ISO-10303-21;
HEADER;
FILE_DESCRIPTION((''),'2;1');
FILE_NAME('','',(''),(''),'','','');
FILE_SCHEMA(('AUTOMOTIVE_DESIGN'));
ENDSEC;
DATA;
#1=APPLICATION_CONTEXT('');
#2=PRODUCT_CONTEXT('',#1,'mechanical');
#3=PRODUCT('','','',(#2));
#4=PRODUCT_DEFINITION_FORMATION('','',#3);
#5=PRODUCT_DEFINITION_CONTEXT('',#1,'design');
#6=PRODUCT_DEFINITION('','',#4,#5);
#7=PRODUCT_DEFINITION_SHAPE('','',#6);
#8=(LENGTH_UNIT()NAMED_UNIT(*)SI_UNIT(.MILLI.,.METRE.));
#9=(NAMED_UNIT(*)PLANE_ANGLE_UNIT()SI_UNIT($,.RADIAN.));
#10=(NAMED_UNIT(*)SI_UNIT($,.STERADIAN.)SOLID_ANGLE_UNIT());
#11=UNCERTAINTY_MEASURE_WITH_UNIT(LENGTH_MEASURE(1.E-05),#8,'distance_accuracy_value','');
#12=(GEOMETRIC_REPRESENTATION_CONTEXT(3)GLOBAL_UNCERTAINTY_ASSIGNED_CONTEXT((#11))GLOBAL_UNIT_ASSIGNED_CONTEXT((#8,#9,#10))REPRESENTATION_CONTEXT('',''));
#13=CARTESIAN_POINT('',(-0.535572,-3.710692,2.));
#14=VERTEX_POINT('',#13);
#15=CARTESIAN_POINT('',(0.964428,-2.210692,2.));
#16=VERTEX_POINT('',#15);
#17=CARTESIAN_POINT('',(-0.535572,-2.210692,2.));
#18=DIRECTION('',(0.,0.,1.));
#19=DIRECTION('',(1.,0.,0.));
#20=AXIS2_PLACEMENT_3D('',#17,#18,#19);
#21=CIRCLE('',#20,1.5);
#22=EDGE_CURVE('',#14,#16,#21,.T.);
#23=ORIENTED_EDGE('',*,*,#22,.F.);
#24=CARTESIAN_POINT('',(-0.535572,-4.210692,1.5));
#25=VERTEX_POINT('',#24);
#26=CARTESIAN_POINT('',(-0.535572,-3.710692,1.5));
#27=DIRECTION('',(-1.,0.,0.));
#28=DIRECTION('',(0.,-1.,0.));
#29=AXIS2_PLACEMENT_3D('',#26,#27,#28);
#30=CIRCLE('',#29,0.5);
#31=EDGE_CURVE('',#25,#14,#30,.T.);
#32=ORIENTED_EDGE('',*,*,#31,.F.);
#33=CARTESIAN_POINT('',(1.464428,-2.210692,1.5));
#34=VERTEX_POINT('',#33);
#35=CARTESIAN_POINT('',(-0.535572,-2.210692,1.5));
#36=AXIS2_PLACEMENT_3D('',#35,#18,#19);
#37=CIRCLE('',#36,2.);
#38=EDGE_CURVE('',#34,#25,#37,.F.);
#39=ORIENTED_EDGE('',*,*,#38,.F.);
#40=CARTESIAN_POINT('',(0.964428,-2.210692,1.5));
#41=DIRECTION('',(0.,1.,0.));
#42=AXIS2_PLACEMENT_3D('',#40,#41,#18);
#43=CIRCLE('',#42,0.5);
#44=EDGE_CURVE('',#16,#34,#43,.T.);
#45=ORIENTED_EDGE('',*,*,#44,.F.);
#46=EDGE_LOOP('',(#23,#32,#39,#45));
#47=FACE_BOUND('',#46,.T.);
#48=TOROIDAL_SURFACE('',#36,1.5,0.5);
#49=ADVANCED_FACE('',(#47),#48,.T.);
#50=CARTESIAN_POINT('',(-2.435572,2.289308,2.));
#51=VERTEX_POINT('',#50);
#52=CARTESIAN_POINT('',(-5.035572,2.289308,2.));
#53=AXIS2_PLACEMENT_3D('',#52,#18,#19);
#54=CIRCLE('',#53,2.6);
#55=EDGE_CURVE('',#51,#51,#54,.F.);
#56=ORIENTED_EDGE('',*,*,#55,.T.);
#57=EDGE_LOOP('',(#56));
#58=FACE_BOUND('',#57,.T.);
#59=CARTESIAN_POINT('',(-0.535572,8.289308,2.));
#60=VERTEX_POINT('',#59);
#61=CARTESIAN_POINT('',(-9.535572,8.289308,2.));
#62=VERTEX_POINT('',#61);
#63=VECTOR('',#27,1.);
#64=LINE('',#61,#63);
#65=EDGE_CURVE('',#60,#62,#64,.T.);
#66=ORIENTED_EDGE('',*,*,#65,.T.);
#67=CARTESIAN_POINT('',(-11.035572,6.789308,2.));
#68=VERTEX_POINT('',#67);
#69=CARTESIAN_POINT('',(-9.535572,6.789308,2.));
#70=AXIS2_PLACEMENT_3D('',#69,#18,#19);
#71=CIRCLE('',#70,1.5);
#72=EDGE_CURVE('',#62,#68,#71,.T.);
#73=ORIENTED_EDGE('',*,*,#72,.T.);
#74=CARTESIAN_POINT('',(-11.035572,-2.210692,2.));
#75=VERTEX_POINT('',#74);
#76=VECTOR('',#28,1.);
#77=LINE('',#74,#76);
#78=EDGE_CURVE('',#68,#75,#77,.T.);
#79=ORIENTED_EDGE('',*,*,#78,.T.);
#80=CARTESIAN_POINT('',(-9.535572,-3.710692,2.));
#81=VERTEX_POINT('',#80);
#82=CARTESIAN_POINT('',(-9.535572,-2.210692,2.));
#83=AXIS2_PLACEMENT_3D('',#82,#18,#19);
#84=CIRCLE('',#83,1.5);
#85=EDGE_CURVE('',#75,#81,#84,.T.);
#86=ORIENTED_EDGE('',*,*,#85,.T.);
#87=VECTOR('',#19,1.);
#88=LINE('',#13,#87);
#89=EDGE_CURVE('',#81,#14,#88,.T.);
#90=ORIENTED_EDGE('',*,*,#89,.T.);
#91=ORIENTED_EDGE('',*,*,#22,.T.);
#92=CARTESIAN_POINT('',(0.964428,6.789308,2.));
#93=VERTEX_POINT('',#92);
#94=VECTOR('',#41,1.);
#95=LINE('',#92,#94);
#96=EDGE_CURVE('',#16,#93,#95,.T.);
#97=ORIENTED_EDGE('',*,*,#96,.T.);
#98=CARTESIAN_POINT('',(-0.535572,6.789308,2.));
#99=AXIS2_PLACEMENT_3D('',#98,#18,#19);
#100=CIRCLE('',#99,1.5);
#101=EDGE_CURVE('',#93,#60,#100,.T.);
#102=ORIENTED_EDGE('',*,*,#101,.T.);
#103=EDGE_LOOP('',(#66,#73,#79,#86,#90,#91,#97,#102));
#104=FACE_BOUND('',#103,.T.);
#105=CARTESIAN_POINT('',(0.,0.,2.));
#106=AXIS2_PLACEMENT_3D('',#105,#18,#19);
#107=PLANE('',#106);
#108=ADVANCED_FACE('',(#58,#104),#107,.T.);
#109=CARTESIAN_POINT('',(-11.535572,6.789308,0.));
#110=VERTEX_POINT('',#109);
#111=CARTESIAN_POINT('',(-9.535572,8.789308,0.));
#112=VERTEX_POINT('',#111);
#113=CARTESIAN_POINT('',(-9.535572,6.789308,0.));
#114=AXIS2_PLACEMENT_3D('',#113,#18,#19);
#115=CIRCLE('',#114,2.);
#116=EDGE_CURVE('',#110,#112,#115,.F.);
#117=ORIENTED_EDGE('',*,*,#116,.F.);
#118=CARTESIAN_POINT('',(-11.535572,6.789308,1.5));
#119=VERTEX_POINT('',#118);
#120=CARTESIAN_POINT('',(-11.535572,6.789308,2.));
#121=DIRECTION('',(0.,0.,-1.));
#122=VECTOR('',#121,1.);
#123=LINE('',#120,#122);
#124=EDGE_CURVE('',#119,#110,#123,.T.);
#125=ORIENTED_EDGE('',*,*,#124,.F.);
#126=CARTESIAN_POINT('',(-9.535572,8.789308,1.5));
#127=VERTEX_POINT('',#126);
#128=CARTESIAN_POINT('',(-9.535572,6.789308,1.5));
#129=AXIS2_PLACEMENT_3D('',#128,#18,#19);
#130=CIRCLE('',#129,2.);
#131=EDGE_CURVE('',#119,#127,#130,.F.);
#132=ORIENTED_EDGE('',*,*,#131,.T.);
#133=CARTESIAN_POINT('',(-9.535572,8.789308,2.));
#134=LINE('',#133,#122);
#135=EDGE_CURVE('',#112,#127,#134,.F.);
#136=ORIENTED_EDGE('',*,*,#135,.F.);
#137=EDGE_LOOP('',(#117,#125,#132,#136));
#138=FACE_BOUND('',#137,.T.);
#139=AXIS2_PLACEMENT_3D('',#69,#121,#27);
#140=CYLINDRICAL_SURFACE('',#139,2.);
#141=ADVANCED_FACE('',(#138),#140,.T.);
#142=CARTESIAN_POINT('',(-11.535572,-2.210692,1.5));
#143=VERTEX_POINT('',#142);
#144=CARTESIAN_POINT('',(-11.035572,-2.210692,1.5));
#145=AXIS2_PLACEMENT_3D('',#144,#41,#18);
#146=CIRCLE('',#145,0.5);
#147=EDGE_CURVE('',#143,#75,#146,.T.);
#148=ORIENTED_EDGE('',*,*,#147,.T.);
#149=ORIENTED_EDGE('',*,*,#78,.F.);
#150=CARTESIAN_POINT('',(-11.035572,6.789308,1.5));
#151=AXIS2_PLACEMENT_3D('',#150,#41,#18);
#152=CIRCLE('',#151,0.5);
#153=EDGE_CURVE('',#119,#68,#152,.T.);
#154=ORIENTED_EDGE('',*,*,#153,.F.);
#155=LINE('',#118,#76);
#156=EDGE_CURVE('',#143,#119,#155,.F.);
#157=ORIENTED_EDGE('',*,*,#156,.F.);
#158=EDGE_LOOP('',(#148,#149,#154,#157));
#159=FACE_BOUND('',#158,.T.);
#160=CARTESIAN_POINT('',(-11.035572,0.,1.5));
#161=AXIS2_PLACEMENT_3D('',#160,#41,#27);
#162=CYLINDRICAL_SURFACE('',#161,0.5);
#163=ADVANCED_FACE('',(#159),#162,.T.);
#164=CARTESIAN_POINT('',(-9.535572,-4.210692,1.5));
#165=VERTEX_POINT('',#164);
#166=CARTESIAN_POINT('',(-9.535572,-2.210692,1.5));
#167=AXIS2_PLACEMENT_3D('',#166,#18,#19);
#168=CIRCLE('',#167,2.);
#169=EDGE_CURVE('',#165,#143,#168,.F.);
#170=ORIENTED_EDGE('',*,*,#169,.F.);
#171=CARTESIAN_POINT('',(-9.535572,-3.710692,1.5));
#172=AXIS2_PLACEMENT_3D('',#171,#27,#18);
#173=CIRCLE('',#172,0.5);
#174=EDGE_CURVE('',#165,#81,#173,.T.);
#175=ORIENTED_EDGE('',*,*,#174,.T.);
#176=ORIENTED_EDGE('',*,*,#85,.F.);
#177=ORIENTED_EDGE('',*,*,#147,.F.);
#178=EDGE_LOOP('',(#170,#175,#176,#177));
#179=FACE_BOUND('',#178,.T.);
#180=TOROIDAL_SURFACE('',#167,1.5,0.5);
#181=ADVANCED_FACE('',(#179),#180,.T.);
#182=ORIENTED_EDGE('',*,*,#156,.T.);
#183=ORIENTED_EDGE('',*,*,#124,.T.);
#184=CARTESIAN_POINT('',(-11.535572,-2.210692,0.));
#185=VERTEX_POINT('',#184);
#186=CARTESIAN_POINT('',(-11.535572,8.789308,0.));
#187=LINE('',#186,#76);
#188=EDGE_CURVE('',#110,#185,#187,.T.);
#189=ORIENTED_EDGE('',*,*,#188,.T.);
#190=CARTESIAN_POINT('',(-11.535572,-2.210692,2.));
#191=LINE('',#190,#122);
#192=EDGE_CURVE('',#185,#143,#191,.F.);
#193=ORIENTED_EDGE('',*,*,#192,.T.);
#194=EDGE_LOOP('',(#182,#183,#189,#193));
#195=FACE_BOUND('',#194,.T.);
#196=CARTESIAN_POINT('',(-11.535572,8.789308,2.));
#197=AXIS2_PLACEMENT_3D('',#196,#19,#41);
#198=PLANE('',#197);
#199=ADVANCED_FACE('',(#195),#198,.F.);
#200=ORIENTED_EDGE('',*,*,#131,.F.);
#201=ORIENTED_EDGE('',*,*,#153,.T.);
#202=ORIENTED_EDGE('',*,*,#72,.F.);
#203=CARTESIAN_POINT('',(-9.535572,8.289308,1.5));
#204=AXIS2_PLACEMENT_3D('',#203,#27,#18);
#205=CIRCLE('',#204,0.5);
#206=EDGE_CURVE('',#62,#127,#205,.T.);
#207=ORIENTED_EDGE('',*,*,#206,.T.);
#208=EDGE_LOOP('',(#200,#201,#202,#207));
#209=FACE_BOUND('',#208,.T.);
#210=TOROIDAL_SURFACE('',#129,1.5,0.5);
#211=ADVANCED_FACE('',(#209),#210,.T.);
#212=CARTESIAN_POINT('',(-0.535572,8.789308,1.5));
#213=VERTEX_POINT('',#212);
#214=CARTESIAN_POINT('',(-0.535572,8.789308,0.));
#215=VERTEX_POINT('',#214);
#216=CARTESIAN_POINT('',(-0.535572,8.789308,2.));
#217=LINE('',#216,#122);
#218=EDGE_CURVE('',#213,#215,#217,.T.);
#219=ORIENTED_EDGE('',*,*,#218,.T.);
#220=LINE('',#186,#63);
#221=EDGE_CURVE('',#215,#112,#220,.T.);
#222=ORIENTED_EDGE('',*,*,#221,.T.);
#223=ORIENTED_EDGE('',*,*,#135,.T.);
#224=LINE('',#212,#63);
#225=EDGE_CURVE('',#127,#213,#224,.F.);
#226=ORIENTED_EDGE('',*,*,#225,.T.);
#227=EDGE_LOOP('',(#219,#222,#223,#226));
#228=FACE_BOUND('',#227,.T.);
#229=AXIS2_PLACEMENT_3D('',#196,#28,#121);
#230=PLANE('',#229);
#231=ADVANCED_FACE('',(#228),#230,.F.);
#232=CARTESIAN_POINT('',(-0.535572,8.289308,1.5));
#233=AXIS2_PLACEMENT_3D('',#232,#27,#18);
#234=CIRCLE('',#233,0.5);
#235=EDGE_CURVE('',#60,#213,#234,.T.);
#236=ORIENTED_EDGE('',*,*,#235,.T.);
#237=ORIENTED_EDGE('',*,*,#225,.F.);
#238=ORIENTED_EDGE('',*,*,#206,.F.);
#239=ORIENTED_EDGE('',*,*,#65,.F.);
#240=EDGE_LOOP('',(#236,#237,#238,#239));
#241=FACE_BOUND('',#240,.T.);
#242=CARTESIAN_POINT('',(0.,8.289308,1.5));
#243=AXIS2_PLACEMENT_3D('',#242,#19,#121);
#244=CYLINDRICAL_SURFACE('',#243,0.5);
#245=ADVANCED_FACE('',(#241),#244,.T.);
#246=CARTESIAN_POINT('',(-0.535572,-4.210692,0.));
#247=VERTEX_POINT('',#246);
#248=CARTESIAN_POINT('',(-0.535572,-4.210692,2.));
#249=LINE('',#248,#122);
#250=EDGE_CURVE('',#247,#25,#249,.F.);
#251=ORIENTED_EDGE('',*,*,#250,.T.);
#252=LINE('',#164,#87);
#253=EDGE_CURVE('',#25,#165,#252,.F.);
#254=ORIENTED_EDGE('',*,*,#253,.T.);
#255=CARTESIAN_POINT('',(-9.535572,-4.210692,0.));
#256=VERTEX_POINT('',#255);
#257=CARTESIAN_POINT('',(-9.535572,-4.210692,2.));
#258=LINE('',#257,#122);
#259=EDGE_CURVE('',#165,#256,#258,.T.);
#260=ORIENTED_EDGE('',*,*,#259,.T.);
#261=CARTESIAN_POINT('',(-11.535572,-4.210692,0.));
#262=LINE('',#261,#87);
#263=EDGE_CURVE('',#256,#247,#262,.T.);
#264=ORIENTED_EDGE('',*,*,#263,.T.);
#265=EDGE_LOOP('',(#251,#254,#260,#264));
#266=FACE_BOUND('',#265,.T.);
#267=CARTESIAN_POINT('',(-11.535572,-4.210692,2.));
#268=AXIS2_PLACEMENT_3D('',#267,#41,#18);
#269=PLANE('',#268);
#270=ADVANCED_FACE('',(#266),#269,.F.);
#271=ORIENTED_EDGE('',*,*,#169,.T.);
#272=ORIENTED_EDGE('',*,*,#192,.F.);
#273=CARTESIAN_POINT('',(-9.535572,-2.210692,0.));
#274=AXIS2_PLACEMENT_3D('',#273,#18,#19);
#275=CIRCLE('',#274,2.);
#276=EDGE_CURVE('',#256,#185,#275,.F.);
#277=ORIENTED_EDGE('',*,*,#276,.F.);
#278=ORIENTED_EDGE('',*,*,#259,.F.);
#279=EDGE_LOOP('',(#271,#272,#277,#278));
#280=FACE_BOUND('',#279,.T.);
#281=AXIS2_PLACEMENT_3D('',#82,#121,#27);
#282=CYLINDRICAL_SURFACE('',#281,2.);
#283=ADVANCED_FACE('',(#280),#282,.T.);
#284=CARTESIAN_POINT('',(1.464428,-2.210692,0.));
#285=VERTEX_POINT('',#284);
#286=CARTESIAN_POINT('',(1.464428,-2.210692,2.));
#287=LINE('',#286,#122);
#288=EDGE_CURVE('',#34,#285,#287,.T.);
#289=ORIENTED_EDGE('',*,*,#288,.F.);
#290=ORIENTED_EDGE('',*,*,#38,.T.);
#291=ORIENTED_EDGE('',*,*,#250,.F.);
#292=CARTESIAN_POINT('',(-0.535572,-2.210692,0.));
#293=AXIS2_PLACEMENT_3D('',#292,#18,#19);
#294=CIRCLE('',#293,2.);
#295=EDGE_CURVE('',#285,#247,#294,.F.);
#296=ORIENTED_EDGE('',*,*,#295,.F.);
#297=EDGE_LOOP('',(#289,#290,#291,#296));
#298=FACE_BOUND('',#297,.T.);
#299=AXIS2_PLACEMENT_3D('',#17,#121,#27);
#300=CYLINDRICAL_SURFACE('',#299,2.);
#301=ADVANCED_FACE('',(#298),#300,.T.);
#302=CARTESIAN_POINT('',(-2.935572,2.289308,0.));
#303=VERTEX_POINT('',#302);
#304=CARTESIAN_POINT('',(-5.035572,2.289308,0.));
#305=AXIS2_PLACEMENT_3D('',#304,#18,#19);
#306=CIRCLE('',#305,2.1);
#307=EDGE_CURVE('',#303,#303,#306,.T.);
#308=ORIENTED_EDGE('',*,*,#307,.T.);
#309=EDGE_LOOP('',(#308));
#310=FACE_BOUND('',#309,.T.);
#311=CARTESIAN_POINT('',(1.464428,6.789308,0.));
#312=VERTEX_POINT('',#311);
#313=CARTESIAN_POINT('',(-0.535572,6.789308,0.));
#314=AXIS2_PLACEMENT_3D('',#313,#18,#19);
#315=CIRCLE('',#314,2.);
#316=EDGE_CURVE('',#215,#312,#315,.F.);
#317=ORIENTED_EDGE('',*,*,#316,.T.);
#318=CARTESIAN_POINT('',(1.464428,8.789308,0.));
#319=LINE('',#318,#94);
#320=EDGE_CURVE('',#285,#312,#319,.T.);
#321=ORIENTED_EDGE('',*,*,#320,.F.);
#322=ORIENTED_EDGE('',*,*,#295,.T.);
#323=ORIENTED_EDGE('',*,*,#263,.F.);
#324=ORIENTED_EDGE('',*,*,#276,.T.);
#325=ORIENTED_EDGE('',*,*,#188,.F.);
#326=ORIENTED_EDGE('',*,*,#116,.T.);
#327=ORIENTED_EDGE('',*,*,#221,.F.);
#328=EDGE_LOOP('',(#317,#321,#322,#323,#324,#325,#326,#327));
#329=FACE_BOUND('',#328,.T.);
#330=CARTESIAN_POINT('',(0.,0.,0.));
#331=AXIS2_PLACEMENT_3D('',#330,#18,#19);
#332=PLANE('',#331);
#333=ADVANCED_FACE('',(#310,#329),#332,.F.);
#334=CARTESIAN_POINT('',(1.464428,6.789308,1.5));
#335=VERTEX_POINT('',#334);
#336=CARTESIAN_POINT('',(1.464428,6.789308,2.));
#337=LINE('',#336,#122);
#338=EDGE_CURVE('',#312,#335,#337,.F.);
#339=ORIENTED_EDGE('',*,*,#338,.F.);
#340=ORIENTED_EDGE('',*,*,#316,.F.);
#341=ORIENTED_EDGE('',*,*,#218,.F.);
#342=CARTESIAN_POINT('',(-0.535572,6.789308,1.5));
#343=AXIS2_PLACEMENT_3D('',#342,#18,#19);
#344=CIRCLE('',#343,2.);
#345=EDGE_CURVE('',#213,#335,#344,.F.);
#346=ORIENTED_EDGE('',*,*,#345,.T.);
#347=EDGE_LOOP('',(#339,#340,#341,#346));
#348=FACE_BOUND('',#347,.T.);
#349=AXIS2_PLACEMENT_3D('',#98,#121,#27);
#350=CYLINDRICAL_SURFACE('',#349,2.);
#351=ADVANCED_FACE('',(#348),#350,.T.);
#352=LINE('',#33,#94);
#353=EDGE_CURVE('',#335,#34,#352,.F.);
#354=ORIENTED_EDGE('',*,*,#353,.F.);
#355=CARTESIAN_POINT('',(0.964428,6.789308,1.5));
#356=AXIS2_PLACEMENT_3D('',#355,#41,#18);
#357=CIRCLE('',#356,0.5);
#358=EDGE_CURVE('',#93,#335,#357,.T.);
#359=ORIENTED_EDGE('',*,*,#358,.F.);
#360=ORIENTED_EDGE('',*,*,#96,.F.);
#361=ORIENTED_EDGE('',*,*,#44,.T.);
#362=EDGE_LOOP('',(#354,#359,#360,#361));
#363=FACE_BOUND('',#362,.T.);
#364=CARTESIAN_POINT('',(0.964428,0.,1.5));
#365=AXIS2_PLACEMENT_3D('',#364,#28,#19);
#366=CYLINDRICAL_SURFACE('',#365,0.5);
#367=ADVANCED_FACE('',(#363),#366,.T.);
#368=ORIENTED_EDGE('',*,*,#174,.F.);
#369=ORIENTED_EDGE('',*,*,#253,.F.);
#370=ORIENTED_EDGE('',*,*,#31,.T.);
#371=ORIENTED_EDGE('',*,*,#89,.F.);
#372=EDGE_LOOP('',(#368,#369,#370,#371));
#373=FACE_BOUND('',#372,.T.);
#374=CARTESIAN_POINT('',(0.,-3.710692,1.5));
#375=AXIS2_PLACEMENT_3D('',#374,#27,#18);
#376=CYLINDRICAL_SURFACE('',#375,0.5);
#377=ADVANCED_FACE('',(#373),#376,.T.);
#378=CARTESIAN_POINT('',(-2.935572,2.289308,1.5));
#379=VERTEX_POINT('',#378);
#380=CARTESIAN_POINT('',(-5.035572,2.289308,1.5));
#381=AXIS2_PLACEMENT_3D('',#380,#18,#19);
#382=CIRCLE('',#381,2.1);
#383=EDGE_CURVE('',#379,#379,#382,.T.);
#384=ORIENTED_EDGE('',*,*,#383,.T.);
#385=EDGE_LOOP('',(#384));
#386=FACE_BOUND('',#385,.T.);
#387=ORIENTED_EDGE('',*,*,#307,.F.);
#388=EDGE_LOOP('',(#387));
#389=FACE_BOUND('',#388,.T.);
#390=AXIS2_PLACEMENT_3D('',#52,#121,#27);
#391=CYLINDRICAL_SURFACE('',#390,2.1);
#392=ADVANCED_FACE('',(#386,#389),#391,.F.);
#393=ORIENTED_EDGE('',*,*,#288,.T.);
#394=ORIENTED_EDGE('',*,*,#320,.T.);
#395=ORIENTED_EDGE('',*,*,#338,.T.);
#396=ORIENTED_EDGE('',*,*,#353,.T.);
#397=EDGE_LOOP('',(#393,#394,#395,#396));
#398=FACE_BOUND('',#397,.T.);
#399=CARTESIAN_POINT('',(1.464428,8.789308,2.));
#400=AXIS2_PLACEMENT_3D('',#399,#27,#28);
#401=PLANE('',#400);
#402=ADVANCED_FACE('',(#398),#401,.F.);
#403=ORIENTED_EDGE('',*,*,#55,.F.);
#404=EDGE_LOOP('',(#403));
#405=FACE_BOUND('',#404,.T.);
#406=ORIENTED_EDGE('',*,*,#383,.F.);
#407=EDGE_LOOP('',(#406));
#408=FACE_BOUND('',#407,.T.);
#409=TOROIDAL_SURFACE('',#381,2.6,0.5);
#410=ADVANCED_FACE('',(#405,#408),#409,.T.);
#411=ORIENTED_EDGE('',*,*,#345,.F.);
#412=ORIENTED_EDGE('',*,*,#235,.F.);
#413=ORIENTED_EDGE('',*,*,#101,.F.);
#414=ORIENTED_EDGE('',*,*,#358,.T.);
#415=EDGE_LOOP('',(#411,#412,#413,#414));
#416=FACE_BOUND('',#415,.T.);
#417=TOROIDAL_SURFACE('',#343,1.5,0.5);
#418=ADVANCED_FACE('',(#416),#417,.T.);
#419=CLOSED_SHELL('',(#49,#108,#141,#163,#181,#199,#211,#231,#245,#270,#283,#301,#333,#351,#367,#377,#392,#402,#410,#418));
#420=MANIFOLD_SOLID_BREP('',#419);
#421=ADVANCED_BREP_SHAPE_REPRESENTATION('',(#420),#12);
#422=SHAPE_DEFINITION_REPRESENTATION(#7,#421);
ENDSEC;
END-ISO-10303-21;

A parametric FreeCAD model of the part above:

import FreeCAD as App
import Part
import Sketcher
Q = App.Units.Quantity


def edges_at(feature, points):
    """Names of the edges that pass closest to the given points."""
    edges = feature.Shape.Edges
    near = lambda p: min(range(len(edges)), key=lambda i: edges[i].distToShape(Part.Vertex(*p))[0])
    return sorted({f"Edge{near(p) + 1}" for p in points})


def add_polygon(sketch, points):
    """Adds a closed chain of lines whose ends are joined by coincident constraints."""
    first, n = sketch.GeometryCount, len(points)
    for a, b in zip(points, points[1:] + points[:1]):
        sketch.addGeometry(Part.LineSegment(App.Vector(*a, 0), App.Vector(*b, 0)), False)
    for i in range(n):
        sketch.addConstraint(Sketcher.Constraint("Coincident", first + i, 2, first + (i + 1) % n, 1))

doc = App.newDocument("Part")
body = doc.addObject("PartDesign::Body", "Body")

# Sketch on XY plane
sketch1 = body.newObject("Sketcher::SketchObject", "Sketch")
sketch1.AttachmentSupport = (doc.getObject("XY_Plane"), [""])
sketch1.MapMode = "FlatFace"
add_polygon(sketch1, [(-11.5, 8.8), (-11.5, -4.2), (1.5, -4.2), (1.5, 8.8)])  # lines 0-3
sketch1.addGeometry(Part.Circle(App.Vector(-5, 2.3, 0), App.Vector(0, 0, 1), 2.1), False)  # 4
sketch1.addConstraint([
    Sketcher.Constraint("Vertical", 0),
    Sketcher.Constraint("Horizontal", 1),
    Sketcher.Constraint("Vertical", 2),
    Sketcher.Constraint("Horizontal", 3),
    Sketcher.Constraint("Equal", 3, 0),
    Sketcher.Constraint("Diameter", 4, Q("4.2 mm")),
    Sketcher.Constraint("DistanceX", 1, 1, 1, 2, Q("13 mm")),
    Sketcher.Constraint("DistanceX", 0, 2, 4, 3, Q("6.5 mm")),
    Sketcher.Constraint("DistanceY", 0, 2, 4, 3, Q("6.5 mm")),
    Sketcher.Constraint("DistanceX", 4, 3, -1, 1, Q("5.035572 mm")),
    Sketcher.Constraint("DistanceY", -1, 1, 4, 3, Q("2.289308 mm")),
])
pad1 = body.newObject("PartDesign::Pad", "Pad")
pad1.Profile = sketch1
pad1.Length = 2
doc.recompute()

fillet = body.newObject("PartDesign::Fillet", "Fillet")
fillet.Base = (pad1, edges_at(pad1, [
    (1.464, -4.211, 1),
    (-11.536, -4.211, 1),
    (-11.536, 8.789, 1),
    (1.464, 8.789, 1),
]))
fillet.Radius = 2
doc.recompute()

fillet2 = body.newObject("PartDesign::Fillet", "Fillet001")
fillet2.Base = (fillet, edges_at(fillet, [
    (-7.136, 2.289, 2),
    (-5.036, -4.211, 2),
    (-11.536, 2.289, 2),
    (1.464, 2.289, 2),
    (-5.036, 8.789, 2),
    (0.879, 8.204, 2),
    (-10.95, 8.204, 2),
    (0.879, -3.625, 2),
    (-10.95, -3.625, 2),
]))
fillet2.Radius = 0.5

doc.recompute()
